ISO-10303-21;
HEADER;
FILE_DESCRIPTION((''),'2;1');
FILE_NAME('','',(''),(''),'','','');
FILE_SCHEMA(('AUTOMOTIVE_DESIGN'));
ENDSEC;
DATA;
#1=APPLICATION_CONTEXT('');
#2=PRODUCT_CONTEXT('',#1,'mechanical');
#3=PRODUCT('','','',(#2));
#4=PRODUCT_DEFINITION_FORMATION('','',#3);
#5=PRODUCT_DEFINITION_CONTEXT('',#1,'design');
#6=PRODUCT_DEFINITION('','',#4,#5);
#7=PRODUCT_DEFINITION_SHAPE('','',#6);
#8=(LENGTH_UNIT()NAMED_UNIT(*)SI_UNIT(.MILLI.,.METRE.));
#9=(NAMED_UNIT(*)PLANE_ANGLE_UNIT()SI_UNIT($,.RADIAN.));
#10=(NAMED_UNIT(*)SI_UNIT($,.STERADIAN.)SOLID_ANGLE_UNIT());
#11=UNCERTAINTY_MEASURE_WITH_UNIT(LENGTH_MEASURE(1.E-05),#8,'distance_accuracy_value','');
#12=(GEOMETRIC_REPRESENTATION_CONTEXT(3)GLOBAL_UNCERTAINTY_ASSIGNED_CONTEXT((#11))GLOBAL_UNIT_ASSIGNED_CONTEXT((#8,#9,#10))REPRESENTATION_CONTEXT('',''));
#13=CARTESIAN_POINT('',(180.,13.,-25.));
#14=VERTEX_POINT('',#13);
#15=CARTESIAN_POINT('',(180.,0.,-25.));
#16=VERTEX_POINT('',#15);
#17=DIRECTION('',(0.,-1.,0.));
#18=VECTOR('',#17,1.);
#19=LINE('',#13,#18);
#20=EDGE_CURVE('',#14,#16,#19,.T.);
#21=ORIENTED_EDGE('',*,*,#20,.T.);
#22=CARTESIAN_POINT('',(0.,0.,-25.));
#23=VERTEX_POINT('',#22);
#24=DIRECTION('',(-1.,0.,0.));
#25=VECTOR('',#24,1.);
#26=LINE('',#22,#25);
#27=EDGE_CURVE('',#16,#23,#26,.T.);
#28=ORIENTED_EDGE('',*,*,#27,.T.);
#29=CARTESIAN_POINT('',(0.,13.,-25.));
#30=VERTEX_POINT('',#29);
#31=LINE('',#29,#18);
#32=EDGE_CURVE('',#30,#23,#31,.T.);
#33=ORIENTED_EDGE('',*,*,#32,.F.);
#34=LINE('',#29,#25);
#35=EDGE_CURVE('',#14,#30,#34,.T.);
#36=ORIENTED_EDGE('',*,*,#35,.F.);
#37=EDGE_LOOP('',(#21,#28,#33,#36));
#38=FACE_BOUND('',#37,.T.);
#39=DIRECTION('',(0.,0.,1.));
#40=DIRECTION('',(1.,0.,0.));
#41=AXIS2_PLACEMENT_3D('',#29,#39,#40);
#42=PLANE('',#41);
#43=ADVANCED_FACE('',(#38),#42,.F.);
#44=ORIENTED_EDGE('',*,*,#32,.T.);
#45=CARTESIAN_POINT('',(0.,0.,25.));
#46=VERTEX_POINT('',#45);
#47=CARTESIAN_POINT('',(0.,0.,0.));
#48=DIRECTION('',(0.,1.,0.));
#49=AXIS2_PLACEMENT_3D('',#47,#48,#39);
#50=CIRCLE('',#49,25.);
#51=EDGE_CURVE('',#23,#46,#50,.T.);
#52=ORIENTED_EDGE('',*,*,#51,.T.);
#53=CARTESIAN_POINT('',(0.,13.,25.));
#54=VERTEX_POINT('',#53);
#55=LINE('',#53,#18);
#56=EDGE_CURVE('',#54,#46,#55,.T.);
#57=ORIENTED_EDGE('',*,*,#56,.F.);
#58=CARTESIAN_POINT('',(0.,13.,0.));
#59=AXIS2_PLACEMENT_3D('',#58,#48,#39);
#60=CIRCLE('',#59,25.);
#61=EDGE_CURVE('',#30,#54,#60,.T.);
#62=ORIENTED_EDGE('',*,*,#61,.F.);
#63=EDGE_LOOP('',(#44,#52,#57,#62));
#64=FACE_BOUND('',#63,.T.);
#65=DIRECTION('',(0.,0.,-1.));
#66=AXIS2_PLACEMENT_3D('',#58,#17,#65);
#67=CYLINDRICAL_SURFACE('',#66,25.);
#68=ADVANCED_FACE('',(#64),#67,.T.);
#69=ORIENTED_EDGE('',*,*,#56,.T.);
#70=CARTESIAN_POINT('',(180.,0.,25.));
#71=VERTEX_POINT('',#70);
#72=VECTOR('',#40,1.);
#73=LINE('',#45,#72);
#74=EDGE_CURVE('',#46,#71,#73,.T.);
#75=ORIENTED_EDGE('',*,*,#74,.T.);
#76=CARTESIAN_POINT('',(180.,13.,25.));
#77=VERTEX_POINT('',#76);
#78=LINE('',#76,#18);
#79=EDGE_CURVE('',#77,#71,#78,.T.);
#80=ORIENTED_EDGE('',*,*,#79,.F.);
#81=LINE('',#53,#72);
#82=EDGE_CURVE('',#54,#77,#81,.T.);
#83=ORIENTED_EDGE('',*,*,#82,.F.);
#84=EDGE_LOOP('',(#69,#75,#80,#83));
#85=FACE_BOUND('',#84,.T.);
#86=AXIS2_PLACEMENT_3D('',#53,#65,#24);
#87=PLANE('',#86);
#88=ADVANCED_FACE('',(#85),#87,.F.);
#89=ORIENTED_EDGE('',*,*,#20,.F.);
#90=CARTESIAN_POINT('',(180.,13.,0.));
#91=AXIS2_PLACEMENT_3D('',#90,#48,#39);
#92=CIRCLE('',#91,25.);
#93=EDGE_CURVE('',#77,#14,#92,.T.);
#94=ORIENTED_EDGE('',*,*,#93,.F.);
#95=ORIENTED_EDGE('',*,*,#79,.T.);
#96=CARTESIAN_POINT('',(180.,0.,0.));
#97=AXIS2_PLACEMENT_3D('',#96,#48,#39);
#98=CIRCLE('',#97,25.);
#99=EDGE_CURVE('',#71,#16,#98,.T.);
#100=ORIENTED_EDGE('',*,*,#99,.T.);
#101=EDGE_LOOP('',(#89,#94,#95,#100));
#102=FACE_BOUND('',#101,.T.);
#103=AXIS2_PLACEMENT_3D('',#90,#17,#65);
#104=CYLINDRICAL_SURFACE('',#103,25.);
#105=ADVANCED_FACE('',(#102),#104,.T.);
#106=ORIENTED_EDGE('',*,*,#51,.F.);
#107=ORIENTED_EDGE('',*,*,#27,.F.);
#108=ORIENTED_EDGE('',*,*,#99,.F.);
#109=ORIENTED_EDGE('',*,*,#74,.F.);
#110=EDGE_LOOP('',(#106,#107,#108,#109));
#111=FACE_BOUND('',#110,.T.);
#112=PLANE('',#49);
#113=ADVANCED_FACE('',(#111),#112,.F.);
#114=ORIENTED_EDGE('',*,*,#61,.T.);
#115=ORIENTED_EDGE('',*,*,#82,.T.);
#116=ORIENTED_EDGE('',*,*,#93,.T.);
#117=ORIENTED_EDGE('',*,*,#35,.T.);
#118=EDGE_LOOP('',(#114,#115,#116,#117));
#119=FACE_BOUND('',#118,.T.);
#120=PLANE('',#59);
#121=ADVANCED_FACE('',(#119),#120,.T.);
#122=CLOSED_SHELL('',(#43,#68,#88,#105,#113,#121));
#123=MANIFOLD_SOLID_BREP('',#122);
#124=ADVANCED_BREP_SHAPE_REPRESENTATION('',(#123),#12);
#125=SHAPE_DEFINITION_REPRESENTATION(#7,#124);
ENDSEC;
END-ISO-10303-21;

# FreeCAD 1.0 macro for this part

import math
import FreeCAD as App
import Part
import Sketcher
from FreeCAD import Vector
Q = App.Units.Quantity

doc = App.newDocument("Part")
body = doc.addObject("PartDesign::Body", "Body")

# Sketch on XZ plane
sketch1 = body.newObject("Sketcher::SketchObject", "Sketch")
sketch1.AttachmentSupport = (doc.getObject("XZ_Plane"), [""])
sketch1.MapMode = "FlatFace"
sketch1.addGeometry([
    Part.LineSegment(Vector(180, -25, 0), Vector(0, -25, 0)),
    Part.ArcOfCircle(Part.Circle(Vector(0, 0, 0), Vector(0, 0, 1), 25), math.radians(90), math.radians(270)),
    Part.LineSegment(Vector(0, 25, 0), Vector(180, 25, 0)),
    Part.ArcOfCircle(Part.Circle(Vector(180, 0, 0), Vector(0, 0, 1), 25), math.radians(-90), math.radians(90)),
], False)
sketch1.addConstraint([
    Sketcher.Constraint("Tangent", 0, 2, 1, 2),
    Sketcher.Constraint("Tangent", 1, 1, 2, 1),
    Sketcher.Constraint("Tangent", 2, 2, 3, 2),
    Sketcher.Constraint("Tangent", 3, 1, 0, 1),
    Sketcher.Constraint("Horizontal", 0),
    Sketcher.Constraint("Horizontal", 2),
    Sketcher.Constraint("Coincident", 1, 3, -1, 1),
    Sketcher.Constraint("Radius", 1, Q("25 mm")),
    Sketcher.Constraint("DistanceX", 0, 2, 0, 1, Q("180 mm")),
])
pad1 = body.newObject("PartDesign::Pad", "Pad")
pad1.Profile = sketch1
pad1.Length = 13
pad1.Reversed = True

doc.recompute()
